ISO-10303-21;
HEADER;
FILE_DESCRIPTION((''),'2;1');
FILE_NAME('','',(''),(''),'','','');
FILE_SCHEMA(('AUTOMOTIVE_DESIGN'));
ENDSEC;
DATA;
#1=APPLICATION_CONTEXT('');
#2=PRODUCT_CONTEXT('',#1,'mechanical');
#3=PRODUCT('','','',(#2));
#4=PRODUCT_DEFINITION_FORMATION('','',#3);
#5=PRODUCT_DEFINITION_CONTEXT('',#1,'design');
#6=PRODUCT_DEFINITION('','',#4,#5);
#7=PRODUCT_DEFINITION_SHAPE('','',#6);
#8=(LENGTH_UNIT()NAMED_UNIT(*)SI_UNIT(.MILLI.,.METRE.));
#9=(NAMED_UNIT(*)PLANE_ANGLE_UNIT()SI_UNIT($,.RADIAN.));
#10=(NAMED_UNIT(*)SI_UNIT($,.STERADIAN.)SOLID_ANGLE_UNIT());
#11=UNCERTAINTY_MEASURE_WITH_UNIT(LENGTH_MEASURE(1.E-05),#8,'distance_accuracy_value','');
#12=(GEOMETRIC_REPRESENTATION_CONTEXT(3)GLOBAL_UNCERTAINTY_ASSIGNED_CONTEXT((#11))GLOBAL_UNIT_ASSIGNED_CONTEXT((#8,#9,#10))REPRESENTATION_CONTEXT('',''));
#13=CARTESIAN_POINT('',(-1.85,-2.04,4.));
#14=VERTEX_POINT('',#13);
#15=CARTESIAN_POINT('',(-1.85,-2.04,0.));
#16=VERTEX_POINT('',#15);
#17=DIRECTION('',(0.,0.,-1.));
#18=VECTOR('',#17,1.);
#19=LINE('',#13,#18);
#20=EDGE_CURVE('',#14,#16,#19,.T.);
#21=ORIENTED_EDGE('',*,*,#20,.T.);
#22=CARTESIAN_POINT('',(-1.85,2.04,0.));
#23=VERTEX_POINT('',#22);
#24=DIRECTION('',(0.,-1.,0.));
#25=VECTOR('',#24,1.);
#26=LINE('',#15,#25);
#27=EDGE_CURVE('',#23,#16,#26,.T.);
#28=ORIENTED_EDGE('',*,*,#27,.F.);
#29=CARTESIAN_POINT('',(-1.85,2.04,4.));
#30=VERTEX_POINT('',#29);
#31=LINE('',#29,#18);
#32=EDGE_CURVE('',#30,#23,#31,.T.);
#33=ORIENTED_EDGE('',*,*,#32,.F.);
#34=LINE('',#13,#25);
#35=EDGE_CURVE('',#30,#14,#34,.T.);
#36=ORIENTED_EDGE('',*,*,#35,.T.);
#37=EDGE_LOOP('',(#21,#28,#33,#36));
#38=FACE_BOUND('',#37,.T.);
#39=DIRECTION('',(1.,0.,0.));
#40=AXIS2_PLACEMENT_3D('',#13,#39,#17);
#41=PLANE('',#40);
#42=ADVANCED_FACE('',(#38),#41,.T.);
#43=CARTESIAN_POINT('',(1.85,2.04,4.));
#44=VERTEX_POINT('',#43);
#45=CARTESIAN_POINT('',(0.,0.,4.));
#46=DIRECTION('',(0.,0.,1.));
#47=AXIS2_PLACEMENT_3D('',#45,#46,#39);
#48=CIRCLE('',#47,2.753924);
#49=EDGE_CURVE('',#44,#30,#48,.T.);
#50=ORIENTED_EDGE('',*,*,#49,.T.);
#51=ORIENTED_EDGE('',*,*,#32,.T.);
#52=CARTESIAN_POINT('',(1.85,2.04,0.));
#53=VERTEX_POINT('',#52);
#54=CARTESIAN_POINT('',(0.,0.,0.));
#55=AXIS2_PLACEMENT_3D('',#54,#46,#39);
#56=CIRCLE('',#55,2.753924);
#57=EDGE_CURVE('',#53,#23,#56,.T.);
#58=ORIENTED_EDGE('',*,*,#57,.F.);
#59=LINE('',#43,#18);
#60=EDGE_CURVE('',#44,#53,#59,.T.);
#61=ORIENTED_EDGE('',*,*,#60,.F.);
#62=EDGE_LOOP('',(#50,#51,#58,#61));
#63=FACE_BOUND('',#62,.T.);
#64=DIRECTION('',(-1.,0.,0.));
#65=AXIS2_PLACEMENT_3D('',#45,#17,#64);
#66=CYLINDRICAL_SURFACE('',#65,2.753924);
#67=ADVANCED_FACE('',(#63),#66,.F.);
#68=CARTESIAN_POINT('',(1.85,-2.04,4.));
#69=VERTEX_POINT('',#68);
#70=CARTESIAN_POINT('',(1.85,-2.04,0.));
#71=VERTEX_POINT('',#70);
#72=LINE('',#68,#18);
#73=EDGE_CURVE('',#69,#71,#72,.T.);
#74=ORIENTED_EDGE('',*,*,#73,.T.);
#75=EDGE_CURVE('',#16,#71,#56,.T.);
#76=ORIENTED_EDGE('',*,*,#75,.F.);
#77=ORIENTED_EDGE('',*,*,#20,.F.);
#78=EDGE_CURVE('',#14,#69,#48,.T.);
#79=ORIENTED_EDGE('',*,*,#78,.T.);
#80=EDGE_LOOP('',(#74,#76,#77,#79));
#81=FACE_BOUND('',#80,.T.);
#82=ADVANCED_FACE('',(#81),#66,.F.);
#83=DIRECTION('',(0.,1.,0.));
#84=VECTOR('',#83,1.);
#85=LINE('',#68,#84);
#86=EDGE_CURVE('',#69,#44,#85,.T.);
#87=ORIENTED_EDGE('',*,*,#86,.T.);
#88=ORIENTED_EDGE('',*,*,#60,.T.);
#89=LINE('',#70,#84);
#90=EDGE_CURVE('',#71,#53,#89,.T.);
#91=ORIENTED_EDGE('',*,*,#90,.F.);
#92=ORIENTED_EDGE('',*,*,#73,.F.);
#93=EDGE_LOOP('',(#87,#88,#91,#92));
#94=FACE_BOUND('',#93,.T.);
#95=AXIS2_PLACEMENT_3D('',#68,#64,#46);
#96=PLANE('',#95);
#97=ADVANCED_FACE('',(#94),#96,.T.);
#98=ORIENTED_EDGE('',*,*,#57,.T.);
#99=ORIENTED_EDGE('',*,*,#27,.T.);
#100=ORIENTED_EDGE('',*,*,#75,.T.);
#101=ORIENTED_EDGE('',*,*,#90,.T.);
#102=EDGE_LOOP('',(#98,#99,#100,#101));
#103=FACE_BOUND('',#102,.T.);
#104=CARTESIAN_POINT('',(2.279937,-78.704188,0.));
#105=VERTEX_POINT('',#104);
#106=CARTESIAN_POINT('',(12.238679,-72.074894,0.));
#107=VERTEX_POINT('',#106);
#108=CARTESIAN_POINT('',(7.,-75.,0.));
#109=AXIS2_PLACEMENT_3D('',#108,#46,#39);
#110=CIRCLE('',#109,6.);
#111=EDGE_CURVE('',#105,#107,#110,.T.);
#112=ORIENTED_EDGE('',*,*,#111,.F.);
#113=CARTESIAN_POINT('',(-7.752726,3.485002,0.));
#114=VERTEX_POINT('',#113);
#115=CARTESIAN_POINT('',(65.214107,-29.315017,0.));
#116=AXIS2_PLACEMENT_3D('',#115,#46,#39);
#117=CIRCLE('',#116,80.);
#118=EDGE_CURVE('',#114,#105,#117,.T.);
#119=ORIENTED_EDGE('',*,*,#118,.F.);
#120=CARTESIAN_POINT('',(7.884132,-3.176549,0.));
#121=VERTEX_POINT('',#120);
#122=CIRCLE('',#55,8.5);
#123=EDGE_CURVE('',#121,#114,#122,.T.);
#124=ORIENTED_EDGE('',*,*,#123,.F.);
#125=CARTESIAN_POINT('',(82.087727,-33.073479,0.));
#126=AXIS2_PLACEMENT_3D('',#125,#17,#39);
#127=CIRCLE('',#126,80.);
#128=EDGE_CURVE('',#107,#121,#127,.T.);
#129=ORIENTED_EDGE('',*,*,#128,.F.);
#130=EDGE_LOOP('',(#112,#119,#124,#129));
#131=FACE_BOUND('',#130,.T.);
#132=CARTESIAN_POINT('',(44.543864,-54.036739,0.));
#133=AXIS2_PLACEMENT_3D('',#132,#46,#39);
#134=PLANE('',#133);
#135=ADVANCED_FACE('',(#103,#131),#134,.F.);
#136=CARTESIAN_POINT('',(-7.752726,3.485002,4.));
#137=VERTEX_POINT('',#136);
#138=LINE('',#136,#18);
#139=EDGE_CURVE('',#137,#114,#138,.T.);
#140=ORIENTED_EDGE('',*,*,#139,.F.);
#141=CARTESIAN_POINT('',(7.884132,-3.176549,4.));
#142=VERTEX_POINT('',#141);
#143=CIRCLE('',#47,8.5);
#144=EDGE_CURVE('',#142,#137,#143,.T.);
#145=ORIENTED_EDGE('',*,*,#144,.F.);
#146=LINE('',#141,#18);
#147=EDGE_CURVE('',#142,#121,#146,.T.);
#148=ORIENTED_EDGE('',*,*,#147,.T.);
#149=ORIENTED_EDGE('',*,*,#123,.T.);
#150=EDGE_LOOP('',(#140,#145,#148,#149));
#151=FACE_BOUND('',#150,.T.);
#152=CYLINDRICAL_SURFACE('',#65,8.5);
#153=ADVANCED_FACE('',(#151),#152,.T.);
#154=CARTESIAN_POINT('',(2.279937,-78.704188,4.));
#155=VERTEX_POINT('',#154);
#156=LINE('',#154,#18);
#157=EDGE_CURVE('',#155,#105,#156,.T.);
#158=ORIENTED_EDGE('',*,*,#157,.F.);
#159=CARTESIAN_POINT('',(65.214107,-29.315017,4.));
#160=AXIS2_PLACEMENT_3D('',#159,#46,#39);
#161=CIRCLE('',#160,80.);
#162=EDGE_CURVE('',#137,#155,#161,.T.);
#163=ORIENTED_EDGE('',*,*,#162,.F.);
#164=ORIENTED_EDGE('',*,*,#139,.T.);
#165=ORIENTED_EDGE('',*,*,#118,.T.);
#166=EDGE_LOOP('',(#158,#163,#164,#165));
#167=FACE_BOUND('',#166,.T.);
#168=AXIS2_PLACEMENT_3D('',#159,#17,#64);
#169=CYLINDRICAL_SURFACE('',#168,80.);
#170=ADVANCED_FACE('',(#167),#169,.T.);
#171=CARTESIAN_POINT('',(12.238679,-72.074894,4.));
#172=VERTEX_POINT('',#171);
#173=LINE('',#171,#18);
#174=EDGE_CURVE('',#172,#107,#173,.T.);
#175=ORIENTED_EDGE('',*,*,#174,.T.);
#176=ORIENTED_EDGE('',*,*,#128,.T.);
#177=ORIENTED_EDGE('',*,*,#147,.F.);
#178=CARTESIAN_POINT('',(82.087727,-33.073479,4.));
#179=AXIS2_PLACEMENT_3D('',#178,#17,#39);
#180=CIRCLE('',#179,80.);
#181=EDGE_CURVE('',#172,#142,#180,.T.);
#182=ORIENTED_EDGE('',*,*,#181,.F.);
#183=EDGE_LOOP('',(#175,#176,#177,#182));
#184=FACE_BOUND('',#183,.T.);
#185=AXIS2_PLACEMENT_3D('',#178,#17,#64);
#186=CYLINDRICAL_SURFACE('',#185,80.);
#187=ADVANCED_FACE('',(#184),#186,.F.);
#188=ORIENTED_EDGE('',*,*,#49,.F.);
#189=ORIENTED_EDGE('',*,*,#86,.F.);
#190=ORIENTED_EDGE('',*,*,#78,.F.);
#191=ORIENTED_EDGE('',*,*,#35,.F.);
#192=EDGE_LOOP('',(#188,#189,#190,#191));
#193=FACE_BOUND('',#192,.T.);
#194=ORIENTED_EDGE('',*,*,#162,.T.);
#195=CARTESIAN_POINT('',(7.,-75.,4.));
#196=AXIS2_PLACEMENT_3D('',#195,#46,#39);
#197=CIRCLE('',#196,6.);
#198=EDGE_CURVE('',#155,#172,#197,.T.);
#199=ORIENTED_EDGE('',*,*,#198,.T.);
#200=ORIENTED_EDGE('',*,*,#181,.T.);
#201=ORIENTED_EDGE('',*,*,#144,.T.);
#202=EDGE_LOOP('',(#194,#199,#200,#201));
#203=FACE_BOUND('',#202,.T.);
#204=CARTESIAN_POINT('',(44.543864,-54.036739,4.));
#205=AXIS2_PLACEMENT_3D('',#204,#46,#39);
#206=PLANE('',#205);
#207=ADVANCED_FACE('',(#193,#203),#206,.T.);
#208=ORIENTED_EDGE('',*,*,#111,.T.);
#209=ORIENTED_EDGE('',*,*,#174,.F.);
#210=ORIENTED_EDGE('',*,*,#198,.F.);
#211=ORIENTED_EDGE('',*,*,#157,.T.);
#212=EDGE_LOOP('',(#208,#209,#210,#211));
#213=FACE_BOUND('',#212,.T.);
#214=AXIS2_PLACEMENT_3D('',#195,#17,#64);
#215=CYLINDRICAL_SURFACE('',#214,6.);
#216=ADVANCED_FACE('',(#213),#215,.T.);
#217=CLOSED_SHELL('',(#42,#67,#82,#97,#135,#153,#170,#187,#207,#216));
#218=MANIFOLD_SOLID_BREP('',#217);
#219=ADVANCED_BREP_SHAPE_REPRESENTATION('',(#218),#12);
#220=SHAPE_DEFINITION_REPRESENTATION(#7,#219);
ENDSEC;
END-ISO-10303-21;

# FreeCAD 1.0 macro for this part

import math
import FreeCAD as App
import Part
import Sketcher
Q = App.Units.Quantity

doc = App.newDocument("Part")
body = doc.addObject("PartDesign::Body", "Body")

sketch1 = doc.addObject("Sketcher::SketchObject", "Sketch")
body.addObject(sketch1)
sketch1.AttachmentSupport = (doc.XY_Plane, [""])
sketch1.MapMode = "FlatFace"
sketch1.addGeometry([
    Part.ArcOfCircle(Part.Circle(App.Vector(0, 0, 0), App.Vector(0, 0, 1), 8.5), math.radians(-22), math.radians(156)),
    Part.ArcOfCircle(Part.Circle(App.Vector(65.2, -29.3, 0), App.Vector(0, 0, 1), 80), math.radians(156), math.radians(218)),
    Part.ArcOfCircle(Part.Circle(App.Vector(7, -75, 0), App.Vector(0, 0, 1), 6), math.radians(-142), math.radians(29)),
    Part.ArcOfCircle(Part.Circle(App.Vector(82.1, -33.1, 0), App.Vector(0, 0, 1), 80), math.radians(158), math.radians(209)),
    Part.ArcOfCircle(Part.Circle(App.Vector(0, 0, 0), App.Vector(0, 0, 1), 2.8), math.radians(-132), math.radians(-48)),
    Part.LineSegment(App.Vector(-1.9, -2, 0), App.Vector(-1.9, 2, 0)),
    Part.ArcOfCircle(Part.Circle(App.Vector(0, 0, 0), App.Vector(0, 0, 1), 2.8), math.radians(48), math.radians(132)),
    Part.LineSegment(App.Vector(1.9, 2, 0), App.Vector(1.9, -2, 0)),
], False)
sketch1.addConstraint([
    Sketcher.Constraint("Tangent", 0, 2, 1, 1),
    Sketcher.Constraint("Tangent", 1, 2, 2, 1),
    Sketcher.Constraint("Tangent", 2, 2, 3, 2),
    Sketcher.Constraint("Tangent", 3, 1, 0, 1),
    Sketcher.Constraint("Coincident", 4, 1, 5, 1),
    Sketcher.Constraint("Coincident", 5, 2, 6, 2),
    Sketcher.Constraint("Coincident", 6, 1, 7, 1),
    Sketcher.Constraint("Coincident", 7, 2, 4, 2),
    Sketcher.Constraint("Vertical", 5),
    Sketcher.Constraint("Vertical", 7),
    Sketcher.Constraint("Coincident", 0, 3, -1, 1),
    Sketcher.Constraint("Coincident", 4, 3, -1, 1),
    Sketcher.Constraint("Coincident", 6, 3, -1, 1),
    Sketcher.Constraint("Equal", 1, 3),
    Sketcher.Constraint("Equal", 4, 6),
    Sketcher.Constraint("Horizontal", 5, 2, 6, 1),
    Sketcher.Constraint("Radius", 1, Q("80 mm")),
    Sketcher.Constraint("Radius", 2, Q("6 mm")),
    Sketcher.Constraint("Radius", 0, Q("8.5 mm")),
    Sketcher.Constraint("DistanceX", -1, 1, 2, 3, Q("7 mm")),
    Sketcher.Constraint("DistanceY", 2, 3, -1, 1, Q("75 mm")),
    Sketcher.Constraint("DistanceY", 5, 1, 5, 2, Q("4.08 mm")),
    Sketcher.Constraint("DistanceX", 5, 2, 6, 1, Q("3.7 mm")),
])
pad1 = doc.addObject("PartDesign::Pad", "Pad")
body.addObject(pad1)
pad1.Profile = sketch1
pad1.Length = 4

doc.recompute()
